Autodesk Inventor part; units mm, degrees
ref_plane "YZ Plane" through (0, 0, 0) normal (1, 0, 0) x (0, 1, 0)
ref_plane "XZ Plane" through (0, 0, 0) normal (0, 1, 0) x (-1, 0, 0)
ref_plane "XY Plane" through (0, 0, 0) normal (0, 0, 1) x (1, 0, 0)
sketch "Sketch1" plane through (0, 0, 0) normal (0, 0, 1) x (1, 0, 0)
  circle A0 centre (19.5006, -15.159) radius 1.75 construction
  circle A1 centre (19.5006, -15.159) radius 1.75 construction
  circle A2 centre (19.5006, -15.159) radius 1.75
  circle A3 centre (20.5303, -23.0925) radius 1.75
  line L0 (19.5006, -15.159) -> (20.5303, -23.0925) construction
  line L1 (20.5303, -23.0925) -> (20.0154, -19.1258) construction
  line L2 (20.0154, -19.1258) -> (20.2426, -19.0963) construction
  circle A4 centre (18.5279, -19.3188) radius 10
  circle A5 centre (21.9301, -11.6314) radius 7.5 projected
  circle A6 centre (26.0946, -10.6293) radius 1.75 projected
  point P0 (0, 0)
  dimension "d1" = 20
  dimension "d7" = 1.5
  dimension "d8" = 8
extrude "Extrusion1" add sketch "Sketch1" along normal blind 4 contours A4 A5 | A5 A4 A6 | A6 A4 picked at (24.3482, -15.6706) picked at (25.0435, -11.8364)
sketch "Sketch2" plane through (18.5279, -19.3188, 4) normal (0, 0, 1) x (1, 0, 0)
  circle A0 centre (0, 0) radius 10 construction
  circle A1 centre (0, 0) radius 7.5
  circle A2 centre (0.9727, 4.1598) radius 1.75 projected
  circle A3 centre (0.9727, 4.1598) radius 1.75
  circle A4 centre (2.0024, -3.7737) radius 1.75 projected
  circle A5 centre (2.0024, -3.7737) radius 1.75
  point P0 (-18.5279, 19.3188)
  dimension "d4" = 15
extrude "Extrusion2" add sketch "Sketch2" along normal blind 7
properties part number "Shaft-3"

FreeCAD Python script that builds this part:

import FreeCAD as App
import Part
import Sketcher
from FreeCAD import Vector

doc = App.newDocument("Part")
body = doc.addObject("PartDesign::Body", "Body")

# Sketch on XY plane
sketch1 = body.newObject("Sketcher::SketchObject", "Sketch")
sketch1.AttachmentSupport = (doc.getObject("XY_Plane"), [""])
sketch1.MapMode = "FlatFace"
sketch1.addGeometry(Part.Circle(Vector(18.5, -19.3, 0), Vector(0, 0, 1), 10), False)
sketch1.addGeometry(Part.Circle(Vector(20.5, -23.1, 0), Vector(0, 0, 1), 1.8), False)
sketch1.addGeometry(Part.Circle(Vector(19.5, -15.2, 0), Vector(0, 0, 1), 1.8), False)
sketch1.addConstraint(Sketcher.Constraint("Equal", 1, 2))
sketch1.addConstraint(Sketcher.Constraint("Diameter", 0, 20.0))
sketch1.addConstraint(Sketcher.Constraint("Diameter", 1, 3.5))
sketch1.addConstraint(Sketcher.Constraint("DistanceX", -1, 1, 0, 3, 18.528))
sketch1.addConstraint(Sketcher.Constraint("DistanceY", 2, 3, -1, 1, 15.159))
sketch1.addConstraint(Sketcher.Constraint("DistanceY", 0, 3, -1, 1, 19.3188))
sketch1.addConstraint(Sketcher.Constraint("DistanceX", -1, 1, 1, 3, 20.5303))
sketch1.addConstraint(Sketcher.Constraint("DistanceY", 1, 3, -1, 1, 23.0925))
sketch1.addConstraint(Sketcher.Constraint("DistanceX", -1, 1, 2, 3, 19.5006))
pad1 = body.newObject("PartDesign::Pad", "Pad")
pad1.Profile = sketch1
pad1.Length = 4

# Sketch on XY plane
sketch2 = body.newObject("Sketcher::SketchObject", "Sketch001")
sketch2.AttachmentSupport = (doc.getObject("XY_Plane"), [""])
sketch2.MapMode = "FlatFace"
sketch2.AttachmentOffset = App.Placement(Vector(0, 0, 4), App.Rotation())
sketch2.addGeometry(Part.Circle(Vector(18.5, -19.3, 0), Vector(0, 0, 1), 7.5), False)
sketch2.addGeometry(Part.Circle(Vector(20.5, -23.1, 0), Vector(0, 0, 1), 1.8), False)
sketch2.addGeometry(Part.Circle(Vector(19.5, -15.2, 0), Vector(0, 0, 1), 1.8), False)
sketch2.addConstraint(Sketcher.Constraint("Equal", 1, 2))
sketch2.addConstraint(Sketcher.Constraint("Diameter", 0, 15.0))
sketch2.addConstraint(Sketcher.Constraint("Diameter", 1, 3.5))
sketch2.addConstraint(Sketcher.Constraint("DistanceX", -1, 1, 0, 3, 18.528))
sketch2.addConstraint(Sketcher.Constraint("DistanceY", 2, 3, -1, 1, 15.159))
sketch2.addConstraint(Sketcher.Constraint("DistanceY", 0, 3, -1, 1, 19.3188))
sketch2.addConstraint(Sketcher.Constraint("DistanceX", -1, 1, 1, 3, 20.5303))
sketch2.addConstraint(Sketcher.Constraint("DistanceY", 1, 3, -1, 1, 23.0925))
sketch2.addConstraint(Sketcher.Constraint("DistanceX", -1, 1, 2, 3, 19.5006))
pad2 = body.newObject("PartDesign::Pad", "Pad001")
pad2.Profile = sketch2
pad2.Length = 7

doc.recompute()
